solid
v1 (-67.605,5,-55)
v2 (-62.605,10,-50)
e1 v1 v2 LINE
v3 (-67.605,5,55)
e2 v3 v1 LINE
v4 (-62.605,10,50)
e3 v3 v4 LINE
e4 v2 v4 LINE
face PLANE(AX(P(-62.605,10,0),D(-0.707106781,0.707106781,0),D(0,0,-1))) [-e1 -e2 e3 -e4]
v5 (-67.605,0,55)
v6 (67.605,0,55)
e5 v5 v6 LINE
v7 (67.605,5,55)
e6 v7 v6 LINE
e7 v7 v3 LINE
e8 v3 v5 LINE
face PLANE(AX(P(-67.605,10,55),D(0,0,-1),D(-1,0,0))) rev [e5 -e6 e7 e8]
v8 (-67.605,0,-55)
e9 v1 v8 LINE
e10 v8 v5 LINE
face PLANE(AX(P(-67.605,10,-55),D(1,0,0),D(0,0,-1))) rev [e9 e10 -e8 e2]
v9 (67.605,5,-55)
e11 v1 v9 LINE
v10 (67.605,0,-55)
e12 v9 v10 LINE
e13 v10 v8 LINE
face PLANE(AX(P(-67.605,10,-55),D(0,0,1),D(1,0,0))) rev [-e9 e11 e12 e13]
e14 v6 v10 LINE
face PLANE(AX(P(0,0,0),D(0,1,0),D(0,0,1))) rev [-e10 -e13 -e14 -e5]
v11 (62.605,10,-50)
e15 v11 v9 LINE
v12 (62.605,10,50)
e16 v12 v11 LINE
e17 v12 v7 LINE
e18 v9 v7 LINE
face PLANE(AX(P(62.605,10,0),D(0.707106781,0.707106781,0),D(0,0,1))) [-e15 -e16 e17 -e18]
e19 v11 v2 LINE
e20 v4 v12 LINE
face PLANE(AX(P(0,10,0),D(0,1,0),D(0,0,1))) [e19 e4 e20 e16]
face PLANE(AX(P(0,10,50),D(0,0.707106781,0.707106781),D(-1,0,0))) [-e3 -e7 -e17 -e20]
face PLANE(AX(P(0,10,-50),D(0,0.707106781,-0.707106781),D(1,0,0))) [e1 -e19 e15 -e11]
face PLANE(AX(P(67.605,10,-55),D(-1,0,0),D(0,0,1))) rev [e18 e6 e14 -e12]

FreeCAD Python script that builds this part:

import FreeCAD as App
import Part
import Sketcher


def edges_at(feature, points):
    """Names of the edges that pass closest to the given points."""
    edges = feature.Shape.Edges
    near = lambda p: min(range(len(edges)), key=lambda i: edges[i].distToShape(Part.Vertex(*p))[0])
    return sorted({f"Edge{near(p) + 1}" for p in points})

doc = App.newDocument("Part")
params = doc.addObject("Spreadsheet::Sheet", "Params")
for row, (alias, value) in enumerate([
    ("sketch1_height", "110 mm"),
    ("sketch1_width", "135.21 mm"),
    ("pad1_length", "10 mm"),
    ("chamfer_size", "5 mm"),
], start=1):
    params.set(f"A{row}", alias)
    params.set(f"B{row}", "=" + value)
    params.setAlias(f"B{row}", alias)

body = doc.addObject("PartDesign::Body", "Body")

# Sketch on XZ plane
sketch1 = body.newObject("Sketcher::SketchObject", "Sketch")
sketch1.AttachmentSupport = (doc.getObject("XZ_Plane"), [""])
sketch1.MapMode = "FlatFace"
sketch1.addGeometry([
    Part.LineSegment(App.Vector(-68, -55, 0), App.Vector(-68, 55, 0)),
    Part.LineSegment(App.Vector(-68, 55, 0), App.Vector(68, 55, 0)),
    Part.LineSegment(App.Vector(68, 55, 0), App.Vector(68, -55, 0)),
    Part.LineSegment(App.Vector(68, -55, 0), App.Vector(-68, -55, 0)),
], False)
sketch1.addConstraint([
    Sketcher.Constraint("Coincident", 0, 2, 1, 1),
    Sketcher.Constraint("Coincident", 1, 2, 2, 1),
    Sketcher.Constraint("Coincident", 2, 2, 3, 1),
    Sketcher.Constraint("Coincident", 3, 2, 0, 1),
    Sketcher.Constraint("Vertical", 0),
    Sketcher.Constraint("Horizontal", 1),
    Sketcher.Constraint("Vertical", 2),
    Sketcher.Constraint("Horizontal", 3),
    Sketcher.Constraint("Symmetric", 0, 2, 2, 2, -1, 1),
    Sketcher.Constraint("DistanceY", 0, 1, 0, 2, 110.0),
    Sketcher.Constraint("DistanceX", 1, 1, 1, 2, 135.21),
])
sketch1.setExpression("Constraints[9]", "Params.sketch1_height")
sketch1.setExpression("Constraints[10]", "Params.sketch1_width")
pad1 = body.newObject("PartDesign::Pad", "Pad")
pad1.Profile = sketch1
pad1.setExpression("Length", "Params.pad1_length")
pad1.Reversed = True
doc.recompute()

chamfer = body.newObject("PartDesign::Chamfer", "Chamfer")
chamfer.Base = (pad1, edges_at(pad1, [
    (-67.605, 10, 0),
    (0, 10, 55),
    (67.605, 10, 0),
    (0, 10, -55),
]))
chamfer.setExpression("Size", "Params.chamfer_size")

doc.recompute()
